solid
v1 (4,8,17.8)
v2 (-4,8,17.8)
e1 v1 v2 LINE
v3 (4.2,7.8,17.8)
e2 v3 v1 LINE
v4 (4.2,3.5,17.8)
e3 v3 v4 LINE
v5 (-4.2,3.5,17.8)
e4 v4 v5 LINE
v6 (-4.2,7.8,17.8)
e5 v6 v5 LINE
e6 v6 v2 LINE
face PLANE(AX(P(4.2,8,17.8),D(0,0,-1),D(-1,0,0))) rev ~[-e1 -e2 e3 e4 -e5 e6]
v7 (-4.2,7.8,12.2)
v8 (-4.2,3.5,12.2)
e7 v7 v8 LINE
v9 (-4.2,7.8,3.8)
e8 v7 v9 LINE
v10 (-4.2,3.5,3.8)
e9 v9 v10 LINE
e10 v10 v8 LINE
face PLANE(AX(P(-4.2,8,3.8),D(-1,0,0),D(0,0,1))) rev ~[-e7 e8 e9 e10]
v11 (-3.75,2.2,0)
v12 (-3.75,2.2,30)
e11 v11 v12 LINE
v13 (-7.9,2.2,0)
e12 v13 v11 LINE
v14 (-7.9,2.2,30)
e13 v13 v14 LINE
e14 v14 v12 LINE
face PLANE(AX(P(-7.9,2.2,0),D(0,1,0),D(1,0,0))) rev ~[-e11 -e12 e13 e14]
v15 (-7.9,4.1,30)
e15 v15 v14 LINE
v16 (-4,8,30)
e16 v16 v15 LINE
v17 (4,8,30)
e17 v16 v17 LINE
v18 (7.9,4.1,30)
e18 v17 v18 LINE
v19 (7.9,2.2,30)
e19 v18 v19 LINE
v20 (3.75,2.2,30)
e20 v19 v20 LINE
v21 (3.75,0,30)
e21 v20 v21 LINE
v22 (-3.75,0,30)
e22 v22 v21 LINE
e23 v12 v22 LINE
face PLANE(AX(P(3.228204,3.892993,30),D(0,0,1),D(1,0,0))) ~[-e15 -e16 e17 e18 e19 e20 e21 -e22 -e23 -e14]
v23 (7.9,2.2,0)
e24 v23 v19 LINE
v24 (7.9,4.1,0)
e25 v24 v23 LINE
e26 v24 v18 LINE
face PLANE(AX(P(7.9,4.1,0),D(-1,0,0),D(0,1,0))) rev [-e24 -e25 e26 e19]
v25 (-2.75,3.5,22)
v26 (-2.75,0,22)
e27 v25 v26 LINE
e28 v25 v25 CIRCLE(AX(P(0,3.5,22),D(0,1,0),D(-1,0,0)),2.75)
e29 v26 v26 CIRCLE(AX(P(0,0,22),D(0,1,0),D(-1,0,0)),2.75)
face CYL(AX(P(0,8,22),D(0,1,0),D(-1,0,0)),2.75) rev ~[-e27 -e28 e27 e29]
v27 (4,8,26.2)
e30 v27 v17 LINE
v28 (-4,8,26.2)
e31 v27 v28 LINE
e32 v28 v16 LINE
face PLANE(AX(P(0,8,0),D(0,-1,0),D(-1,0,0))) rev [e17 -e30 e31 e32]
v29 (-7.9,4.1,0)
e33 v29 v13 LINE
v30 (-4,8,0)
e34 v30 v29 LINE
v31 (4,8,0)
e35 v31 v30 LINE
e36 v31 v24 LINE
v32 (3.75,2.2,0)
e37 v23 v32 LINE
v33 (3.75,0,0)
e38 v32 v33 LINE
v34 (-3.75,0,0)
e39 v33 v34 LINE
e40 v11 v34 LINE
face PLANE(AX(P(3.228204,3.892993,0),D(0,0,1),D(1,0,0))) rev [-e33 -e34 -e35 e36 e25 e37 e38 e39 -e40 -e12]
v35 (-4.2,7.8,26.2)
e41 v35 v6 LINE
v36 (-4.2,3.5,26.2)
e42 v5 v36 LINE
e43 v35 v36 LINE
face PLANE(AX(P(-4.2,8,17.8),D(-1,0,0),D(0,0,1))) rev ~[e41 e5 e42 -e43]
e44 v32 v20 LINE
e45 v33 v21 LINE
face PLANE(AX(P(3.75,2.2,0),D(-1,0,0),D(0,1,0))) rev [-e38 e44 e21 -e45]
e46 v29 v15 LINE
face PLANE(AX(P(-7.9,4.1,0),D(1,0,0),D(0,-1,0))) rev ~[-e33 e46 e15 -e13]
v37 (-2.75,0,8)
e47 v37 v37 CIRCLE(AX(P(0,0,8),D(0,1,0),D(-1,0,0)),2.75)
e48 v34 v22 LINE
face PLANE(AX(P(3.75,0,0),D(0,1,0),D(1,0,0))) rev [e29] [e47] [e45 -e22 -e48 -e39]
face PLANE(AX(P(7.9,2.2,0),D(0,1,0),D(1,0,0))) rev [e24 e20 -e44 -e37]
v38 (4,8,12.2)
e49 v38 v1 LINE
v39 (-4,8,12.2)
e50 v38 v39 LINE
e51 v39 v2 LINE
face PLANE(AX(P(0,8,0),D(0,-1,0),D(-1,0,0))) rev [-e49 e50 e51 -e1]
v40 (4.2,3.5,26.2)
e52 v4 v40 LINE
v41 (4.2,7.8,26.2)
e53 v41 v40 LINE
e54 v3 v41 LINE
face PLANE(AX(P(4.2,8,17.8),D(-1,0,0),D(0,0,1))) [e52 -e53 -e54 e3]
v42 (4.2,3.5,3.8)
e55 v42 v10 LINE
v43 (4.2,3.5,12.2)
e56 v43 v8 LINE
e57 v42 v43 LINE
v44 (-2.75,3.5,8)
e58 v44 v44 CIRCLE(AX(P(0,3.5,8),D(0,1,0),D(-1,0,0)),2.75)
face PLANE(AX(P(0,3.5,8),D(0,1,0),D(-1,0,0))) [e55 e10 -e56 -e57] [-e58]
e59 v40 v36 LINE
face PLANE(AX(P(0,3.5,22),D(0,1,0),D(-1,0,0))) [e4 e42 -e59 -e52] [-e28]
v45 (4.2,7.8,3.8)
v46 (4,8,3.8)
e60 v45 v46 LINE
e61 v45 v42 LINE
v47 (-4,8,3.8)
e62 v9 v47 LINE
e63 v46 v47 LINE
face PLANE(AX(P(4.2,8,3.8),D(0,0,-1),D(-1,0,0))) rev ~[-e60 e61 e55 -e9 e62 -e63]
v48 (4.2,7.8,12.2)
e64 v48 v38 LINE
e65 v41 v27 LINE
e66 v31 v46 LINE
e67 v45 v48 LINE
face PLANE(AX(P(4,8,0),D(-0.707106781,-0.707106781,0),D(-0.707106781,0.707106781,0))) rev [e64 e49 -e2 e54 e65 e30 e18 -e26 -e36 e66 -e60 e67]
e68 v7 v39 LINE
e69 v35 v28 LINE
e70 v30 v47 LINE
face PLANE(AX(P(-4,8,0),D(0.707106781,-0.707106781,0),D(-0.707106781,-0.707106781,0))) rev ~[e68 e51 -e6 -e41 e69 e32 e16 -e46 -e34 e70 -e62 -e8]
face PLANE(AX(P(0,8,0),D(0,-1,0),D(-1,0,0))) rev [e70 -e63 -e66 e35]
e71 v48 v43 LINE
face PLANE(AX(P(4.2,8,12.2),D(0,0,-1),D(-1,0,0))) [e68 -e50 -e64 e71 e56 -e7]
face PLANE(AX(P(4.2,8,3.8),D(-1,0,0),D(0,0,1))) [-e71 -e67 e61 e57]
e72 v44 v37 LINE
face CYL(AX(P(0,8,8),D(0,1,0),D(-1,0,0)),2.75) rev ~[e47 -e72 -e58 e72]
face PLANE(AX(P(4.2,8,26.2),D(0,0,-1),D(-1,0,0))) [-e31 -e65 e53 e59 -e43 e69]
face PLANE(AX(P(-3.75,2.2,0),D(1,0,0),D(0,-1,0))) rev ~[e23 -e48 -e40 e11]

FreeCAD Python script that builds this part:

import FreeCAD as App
import Part
import Sketcher

V = App.Vector
Q = App.Units.Quantity


def add_polygon(sketch, points):
    """Adds a closed chain of lines whose ends are joined by coincident constraints."""
    first, n = sketch.GeometryCount, len(points)
    for a, b in zip(points, points[1:] + points[:1]):
        sketch.addGeometry(Part.LineSegment(App.Vector(*a, 0), App.Vector(*b, 0)), False)
    for i in range(n):
        sketch.addConstraint(Sketcher.Constraint("Coincident", first + i, 2, first + (i + 1) % n, 1))

doc = App.newDocument("Part")
body = doc.addObject("PartDesign::Body", "Body")

sketch1 = body.newObject("Sketcher::SketchObject", "Sketch")
sketch1.AttachmentSupport = (doc.getObject("XY_Plane"), [""])
sketch1.MapMode = "FlatFace"
add_polygon(sketch1, [(0, 0), (0, 8), (-4, 8), (-7.9, 4.1), (-7.9, 2.2), (-3.8, 2.2), (-3.8, 0)])
sketch1.addConstraint([
    Sketcher.Constraint("Vertical", 0),
    Sketcher.Constraint("Horizontal", 1),
    Sketcher.Constraint("Vertical", 3),
    Sketcher.Constraint("Horizontal", 4),
    Sketcher.Constraint("Vertical", 5),
    Sketcher.Constraint("Horizontal", 6),
    Sketcher.Constraint("Coincident", 6, 2, -1, 1),
    Sketcher.Constraint("DistanceX", 1, 2, 1, 1, Q("4 mm")),
    Sketcher.Constraint("DistanceY", 0, 1, 0, 2, Q("8 mm")),
    Sketcher.Constraint("Angle", 2, Q("-135 deg")),
    Sketcher.Constraint("DistanceY", 3, 2, 3, 1, Q("1.9 mm")),
    Sketcher.Constraint("DistanceY", 5, 2, 5, 1, Q("2.2 mm")),
    Sketcher.Constraint("DistanceX", 4, 1, 4, 2, Q("4.15 mm")),
])
pad1 = body.newObject("PartDesign::Pad", "Pad")
pad1.Profile = sketch1
pad1.Length = 30
doc.recompute()

mirrored = body.newObject("PartDesign::Mirrored", "Mirrored")
mirrored.Originals = [pad1]
mirrored.MirrorPlane = (doc.getObject("YZ_Plane"), [""])
body.Tip = mirrored

sketch2 = body.newObject("Sketcher::SketchObject", "Sketch001")
sketch2.AttachmentSupport = (doc.getObject("XZ_Plane"), [""])
sketch2.MapMode = "FlatFace"
sketch2.AttachmentOffset = App.Placement(V(0, 0, -8), App.Rotation())
add_polygon(sketch2, [(4, 12), (4, 4), (-4, 4), (-4, 12)])
sketch2.addConstraint([
    Sketcher.Constraint("Vertical", 0),
    Sketcher.Constraint("Horizontal", 1),
    Sketcher.Constraint("Vertical", 2),
    Sketcher.Constraint("Horizontal", 3),
    Sketcher.Constraint("Equal", 3, 0),
    Sketcher.Constraint("DistanceX", 1, 2, 1, 1, Q("8.4 mm")),
    Sketcher.Constraint("DistanceX", -1, 1, 0, 2, Q("4.2 mm")),
    Sketcher.Constraint("DistanceY", -1, 1, 0, 2, Q("3.8 mm")),
])
pocket1 = body.newObject("PartDesign::Pocket", "Pocket")
pocket1.Profile = sketch2
pocket1.Length = 4.5
pocket1.Reversed = True
doc.recompute()

linearpattern = body.newObject("PartDesign::LinearPattern", "LinearPattern")
linearpattern.Originals = [pocket1]
linearpattern.Direction = (doc.getObject("Z_Axis"), [""])
linearpattern.Mode = "offset"
linearpattern.Offset = 14
linearpattern.Occurrences = 2
body.Tip = linearpattern

sketch3 = body.newObject("Sketcher::SketchObject", "Sketch002")
sketch3.AttachmentSupport = (doc.getObject("XZ_Plane"), [""])
sketch3.MapMode = "FlatFace"
sketch3.AttachmentOffset = App.Placement(V(0, 0, -8), App.Rotation())
sketch3.addGeometry(Part.Circle(V(0, 8, 0), V(0, 0, 1), 2.8), False)
sketch3.addConstraint([
    Sketcher.Constraint("PointOnObject", 0, 3, -2),
    Sketcher.Constraint("Diameter", 0, Q("5.5 mm")),
    Sketcher.Constraint("DistanceY", -1, 1, 0, 3, Q("8 mm")),
])
pocket2 = body.newObject("PartDesign::Pocket", "Pocket001")
pocket2.Profile = sketch3
pocket2.Length = 25
pocket2.Reversed = True
doc.recompute()

linearpattern2 = body.newObject("PartDesign::LinearPattern", "LinearPattern001")
linearpattern2.Originals = [pocket2]
linearpattern2.Direction = (doc.getObject("Z_Axis"), [""])
linearpattern2.Mode = "offset"
linearpattern2.Offset = 14
linearpattern2.Occurrences = 2
body.Tip = linearpattern2

doc.recompute()
